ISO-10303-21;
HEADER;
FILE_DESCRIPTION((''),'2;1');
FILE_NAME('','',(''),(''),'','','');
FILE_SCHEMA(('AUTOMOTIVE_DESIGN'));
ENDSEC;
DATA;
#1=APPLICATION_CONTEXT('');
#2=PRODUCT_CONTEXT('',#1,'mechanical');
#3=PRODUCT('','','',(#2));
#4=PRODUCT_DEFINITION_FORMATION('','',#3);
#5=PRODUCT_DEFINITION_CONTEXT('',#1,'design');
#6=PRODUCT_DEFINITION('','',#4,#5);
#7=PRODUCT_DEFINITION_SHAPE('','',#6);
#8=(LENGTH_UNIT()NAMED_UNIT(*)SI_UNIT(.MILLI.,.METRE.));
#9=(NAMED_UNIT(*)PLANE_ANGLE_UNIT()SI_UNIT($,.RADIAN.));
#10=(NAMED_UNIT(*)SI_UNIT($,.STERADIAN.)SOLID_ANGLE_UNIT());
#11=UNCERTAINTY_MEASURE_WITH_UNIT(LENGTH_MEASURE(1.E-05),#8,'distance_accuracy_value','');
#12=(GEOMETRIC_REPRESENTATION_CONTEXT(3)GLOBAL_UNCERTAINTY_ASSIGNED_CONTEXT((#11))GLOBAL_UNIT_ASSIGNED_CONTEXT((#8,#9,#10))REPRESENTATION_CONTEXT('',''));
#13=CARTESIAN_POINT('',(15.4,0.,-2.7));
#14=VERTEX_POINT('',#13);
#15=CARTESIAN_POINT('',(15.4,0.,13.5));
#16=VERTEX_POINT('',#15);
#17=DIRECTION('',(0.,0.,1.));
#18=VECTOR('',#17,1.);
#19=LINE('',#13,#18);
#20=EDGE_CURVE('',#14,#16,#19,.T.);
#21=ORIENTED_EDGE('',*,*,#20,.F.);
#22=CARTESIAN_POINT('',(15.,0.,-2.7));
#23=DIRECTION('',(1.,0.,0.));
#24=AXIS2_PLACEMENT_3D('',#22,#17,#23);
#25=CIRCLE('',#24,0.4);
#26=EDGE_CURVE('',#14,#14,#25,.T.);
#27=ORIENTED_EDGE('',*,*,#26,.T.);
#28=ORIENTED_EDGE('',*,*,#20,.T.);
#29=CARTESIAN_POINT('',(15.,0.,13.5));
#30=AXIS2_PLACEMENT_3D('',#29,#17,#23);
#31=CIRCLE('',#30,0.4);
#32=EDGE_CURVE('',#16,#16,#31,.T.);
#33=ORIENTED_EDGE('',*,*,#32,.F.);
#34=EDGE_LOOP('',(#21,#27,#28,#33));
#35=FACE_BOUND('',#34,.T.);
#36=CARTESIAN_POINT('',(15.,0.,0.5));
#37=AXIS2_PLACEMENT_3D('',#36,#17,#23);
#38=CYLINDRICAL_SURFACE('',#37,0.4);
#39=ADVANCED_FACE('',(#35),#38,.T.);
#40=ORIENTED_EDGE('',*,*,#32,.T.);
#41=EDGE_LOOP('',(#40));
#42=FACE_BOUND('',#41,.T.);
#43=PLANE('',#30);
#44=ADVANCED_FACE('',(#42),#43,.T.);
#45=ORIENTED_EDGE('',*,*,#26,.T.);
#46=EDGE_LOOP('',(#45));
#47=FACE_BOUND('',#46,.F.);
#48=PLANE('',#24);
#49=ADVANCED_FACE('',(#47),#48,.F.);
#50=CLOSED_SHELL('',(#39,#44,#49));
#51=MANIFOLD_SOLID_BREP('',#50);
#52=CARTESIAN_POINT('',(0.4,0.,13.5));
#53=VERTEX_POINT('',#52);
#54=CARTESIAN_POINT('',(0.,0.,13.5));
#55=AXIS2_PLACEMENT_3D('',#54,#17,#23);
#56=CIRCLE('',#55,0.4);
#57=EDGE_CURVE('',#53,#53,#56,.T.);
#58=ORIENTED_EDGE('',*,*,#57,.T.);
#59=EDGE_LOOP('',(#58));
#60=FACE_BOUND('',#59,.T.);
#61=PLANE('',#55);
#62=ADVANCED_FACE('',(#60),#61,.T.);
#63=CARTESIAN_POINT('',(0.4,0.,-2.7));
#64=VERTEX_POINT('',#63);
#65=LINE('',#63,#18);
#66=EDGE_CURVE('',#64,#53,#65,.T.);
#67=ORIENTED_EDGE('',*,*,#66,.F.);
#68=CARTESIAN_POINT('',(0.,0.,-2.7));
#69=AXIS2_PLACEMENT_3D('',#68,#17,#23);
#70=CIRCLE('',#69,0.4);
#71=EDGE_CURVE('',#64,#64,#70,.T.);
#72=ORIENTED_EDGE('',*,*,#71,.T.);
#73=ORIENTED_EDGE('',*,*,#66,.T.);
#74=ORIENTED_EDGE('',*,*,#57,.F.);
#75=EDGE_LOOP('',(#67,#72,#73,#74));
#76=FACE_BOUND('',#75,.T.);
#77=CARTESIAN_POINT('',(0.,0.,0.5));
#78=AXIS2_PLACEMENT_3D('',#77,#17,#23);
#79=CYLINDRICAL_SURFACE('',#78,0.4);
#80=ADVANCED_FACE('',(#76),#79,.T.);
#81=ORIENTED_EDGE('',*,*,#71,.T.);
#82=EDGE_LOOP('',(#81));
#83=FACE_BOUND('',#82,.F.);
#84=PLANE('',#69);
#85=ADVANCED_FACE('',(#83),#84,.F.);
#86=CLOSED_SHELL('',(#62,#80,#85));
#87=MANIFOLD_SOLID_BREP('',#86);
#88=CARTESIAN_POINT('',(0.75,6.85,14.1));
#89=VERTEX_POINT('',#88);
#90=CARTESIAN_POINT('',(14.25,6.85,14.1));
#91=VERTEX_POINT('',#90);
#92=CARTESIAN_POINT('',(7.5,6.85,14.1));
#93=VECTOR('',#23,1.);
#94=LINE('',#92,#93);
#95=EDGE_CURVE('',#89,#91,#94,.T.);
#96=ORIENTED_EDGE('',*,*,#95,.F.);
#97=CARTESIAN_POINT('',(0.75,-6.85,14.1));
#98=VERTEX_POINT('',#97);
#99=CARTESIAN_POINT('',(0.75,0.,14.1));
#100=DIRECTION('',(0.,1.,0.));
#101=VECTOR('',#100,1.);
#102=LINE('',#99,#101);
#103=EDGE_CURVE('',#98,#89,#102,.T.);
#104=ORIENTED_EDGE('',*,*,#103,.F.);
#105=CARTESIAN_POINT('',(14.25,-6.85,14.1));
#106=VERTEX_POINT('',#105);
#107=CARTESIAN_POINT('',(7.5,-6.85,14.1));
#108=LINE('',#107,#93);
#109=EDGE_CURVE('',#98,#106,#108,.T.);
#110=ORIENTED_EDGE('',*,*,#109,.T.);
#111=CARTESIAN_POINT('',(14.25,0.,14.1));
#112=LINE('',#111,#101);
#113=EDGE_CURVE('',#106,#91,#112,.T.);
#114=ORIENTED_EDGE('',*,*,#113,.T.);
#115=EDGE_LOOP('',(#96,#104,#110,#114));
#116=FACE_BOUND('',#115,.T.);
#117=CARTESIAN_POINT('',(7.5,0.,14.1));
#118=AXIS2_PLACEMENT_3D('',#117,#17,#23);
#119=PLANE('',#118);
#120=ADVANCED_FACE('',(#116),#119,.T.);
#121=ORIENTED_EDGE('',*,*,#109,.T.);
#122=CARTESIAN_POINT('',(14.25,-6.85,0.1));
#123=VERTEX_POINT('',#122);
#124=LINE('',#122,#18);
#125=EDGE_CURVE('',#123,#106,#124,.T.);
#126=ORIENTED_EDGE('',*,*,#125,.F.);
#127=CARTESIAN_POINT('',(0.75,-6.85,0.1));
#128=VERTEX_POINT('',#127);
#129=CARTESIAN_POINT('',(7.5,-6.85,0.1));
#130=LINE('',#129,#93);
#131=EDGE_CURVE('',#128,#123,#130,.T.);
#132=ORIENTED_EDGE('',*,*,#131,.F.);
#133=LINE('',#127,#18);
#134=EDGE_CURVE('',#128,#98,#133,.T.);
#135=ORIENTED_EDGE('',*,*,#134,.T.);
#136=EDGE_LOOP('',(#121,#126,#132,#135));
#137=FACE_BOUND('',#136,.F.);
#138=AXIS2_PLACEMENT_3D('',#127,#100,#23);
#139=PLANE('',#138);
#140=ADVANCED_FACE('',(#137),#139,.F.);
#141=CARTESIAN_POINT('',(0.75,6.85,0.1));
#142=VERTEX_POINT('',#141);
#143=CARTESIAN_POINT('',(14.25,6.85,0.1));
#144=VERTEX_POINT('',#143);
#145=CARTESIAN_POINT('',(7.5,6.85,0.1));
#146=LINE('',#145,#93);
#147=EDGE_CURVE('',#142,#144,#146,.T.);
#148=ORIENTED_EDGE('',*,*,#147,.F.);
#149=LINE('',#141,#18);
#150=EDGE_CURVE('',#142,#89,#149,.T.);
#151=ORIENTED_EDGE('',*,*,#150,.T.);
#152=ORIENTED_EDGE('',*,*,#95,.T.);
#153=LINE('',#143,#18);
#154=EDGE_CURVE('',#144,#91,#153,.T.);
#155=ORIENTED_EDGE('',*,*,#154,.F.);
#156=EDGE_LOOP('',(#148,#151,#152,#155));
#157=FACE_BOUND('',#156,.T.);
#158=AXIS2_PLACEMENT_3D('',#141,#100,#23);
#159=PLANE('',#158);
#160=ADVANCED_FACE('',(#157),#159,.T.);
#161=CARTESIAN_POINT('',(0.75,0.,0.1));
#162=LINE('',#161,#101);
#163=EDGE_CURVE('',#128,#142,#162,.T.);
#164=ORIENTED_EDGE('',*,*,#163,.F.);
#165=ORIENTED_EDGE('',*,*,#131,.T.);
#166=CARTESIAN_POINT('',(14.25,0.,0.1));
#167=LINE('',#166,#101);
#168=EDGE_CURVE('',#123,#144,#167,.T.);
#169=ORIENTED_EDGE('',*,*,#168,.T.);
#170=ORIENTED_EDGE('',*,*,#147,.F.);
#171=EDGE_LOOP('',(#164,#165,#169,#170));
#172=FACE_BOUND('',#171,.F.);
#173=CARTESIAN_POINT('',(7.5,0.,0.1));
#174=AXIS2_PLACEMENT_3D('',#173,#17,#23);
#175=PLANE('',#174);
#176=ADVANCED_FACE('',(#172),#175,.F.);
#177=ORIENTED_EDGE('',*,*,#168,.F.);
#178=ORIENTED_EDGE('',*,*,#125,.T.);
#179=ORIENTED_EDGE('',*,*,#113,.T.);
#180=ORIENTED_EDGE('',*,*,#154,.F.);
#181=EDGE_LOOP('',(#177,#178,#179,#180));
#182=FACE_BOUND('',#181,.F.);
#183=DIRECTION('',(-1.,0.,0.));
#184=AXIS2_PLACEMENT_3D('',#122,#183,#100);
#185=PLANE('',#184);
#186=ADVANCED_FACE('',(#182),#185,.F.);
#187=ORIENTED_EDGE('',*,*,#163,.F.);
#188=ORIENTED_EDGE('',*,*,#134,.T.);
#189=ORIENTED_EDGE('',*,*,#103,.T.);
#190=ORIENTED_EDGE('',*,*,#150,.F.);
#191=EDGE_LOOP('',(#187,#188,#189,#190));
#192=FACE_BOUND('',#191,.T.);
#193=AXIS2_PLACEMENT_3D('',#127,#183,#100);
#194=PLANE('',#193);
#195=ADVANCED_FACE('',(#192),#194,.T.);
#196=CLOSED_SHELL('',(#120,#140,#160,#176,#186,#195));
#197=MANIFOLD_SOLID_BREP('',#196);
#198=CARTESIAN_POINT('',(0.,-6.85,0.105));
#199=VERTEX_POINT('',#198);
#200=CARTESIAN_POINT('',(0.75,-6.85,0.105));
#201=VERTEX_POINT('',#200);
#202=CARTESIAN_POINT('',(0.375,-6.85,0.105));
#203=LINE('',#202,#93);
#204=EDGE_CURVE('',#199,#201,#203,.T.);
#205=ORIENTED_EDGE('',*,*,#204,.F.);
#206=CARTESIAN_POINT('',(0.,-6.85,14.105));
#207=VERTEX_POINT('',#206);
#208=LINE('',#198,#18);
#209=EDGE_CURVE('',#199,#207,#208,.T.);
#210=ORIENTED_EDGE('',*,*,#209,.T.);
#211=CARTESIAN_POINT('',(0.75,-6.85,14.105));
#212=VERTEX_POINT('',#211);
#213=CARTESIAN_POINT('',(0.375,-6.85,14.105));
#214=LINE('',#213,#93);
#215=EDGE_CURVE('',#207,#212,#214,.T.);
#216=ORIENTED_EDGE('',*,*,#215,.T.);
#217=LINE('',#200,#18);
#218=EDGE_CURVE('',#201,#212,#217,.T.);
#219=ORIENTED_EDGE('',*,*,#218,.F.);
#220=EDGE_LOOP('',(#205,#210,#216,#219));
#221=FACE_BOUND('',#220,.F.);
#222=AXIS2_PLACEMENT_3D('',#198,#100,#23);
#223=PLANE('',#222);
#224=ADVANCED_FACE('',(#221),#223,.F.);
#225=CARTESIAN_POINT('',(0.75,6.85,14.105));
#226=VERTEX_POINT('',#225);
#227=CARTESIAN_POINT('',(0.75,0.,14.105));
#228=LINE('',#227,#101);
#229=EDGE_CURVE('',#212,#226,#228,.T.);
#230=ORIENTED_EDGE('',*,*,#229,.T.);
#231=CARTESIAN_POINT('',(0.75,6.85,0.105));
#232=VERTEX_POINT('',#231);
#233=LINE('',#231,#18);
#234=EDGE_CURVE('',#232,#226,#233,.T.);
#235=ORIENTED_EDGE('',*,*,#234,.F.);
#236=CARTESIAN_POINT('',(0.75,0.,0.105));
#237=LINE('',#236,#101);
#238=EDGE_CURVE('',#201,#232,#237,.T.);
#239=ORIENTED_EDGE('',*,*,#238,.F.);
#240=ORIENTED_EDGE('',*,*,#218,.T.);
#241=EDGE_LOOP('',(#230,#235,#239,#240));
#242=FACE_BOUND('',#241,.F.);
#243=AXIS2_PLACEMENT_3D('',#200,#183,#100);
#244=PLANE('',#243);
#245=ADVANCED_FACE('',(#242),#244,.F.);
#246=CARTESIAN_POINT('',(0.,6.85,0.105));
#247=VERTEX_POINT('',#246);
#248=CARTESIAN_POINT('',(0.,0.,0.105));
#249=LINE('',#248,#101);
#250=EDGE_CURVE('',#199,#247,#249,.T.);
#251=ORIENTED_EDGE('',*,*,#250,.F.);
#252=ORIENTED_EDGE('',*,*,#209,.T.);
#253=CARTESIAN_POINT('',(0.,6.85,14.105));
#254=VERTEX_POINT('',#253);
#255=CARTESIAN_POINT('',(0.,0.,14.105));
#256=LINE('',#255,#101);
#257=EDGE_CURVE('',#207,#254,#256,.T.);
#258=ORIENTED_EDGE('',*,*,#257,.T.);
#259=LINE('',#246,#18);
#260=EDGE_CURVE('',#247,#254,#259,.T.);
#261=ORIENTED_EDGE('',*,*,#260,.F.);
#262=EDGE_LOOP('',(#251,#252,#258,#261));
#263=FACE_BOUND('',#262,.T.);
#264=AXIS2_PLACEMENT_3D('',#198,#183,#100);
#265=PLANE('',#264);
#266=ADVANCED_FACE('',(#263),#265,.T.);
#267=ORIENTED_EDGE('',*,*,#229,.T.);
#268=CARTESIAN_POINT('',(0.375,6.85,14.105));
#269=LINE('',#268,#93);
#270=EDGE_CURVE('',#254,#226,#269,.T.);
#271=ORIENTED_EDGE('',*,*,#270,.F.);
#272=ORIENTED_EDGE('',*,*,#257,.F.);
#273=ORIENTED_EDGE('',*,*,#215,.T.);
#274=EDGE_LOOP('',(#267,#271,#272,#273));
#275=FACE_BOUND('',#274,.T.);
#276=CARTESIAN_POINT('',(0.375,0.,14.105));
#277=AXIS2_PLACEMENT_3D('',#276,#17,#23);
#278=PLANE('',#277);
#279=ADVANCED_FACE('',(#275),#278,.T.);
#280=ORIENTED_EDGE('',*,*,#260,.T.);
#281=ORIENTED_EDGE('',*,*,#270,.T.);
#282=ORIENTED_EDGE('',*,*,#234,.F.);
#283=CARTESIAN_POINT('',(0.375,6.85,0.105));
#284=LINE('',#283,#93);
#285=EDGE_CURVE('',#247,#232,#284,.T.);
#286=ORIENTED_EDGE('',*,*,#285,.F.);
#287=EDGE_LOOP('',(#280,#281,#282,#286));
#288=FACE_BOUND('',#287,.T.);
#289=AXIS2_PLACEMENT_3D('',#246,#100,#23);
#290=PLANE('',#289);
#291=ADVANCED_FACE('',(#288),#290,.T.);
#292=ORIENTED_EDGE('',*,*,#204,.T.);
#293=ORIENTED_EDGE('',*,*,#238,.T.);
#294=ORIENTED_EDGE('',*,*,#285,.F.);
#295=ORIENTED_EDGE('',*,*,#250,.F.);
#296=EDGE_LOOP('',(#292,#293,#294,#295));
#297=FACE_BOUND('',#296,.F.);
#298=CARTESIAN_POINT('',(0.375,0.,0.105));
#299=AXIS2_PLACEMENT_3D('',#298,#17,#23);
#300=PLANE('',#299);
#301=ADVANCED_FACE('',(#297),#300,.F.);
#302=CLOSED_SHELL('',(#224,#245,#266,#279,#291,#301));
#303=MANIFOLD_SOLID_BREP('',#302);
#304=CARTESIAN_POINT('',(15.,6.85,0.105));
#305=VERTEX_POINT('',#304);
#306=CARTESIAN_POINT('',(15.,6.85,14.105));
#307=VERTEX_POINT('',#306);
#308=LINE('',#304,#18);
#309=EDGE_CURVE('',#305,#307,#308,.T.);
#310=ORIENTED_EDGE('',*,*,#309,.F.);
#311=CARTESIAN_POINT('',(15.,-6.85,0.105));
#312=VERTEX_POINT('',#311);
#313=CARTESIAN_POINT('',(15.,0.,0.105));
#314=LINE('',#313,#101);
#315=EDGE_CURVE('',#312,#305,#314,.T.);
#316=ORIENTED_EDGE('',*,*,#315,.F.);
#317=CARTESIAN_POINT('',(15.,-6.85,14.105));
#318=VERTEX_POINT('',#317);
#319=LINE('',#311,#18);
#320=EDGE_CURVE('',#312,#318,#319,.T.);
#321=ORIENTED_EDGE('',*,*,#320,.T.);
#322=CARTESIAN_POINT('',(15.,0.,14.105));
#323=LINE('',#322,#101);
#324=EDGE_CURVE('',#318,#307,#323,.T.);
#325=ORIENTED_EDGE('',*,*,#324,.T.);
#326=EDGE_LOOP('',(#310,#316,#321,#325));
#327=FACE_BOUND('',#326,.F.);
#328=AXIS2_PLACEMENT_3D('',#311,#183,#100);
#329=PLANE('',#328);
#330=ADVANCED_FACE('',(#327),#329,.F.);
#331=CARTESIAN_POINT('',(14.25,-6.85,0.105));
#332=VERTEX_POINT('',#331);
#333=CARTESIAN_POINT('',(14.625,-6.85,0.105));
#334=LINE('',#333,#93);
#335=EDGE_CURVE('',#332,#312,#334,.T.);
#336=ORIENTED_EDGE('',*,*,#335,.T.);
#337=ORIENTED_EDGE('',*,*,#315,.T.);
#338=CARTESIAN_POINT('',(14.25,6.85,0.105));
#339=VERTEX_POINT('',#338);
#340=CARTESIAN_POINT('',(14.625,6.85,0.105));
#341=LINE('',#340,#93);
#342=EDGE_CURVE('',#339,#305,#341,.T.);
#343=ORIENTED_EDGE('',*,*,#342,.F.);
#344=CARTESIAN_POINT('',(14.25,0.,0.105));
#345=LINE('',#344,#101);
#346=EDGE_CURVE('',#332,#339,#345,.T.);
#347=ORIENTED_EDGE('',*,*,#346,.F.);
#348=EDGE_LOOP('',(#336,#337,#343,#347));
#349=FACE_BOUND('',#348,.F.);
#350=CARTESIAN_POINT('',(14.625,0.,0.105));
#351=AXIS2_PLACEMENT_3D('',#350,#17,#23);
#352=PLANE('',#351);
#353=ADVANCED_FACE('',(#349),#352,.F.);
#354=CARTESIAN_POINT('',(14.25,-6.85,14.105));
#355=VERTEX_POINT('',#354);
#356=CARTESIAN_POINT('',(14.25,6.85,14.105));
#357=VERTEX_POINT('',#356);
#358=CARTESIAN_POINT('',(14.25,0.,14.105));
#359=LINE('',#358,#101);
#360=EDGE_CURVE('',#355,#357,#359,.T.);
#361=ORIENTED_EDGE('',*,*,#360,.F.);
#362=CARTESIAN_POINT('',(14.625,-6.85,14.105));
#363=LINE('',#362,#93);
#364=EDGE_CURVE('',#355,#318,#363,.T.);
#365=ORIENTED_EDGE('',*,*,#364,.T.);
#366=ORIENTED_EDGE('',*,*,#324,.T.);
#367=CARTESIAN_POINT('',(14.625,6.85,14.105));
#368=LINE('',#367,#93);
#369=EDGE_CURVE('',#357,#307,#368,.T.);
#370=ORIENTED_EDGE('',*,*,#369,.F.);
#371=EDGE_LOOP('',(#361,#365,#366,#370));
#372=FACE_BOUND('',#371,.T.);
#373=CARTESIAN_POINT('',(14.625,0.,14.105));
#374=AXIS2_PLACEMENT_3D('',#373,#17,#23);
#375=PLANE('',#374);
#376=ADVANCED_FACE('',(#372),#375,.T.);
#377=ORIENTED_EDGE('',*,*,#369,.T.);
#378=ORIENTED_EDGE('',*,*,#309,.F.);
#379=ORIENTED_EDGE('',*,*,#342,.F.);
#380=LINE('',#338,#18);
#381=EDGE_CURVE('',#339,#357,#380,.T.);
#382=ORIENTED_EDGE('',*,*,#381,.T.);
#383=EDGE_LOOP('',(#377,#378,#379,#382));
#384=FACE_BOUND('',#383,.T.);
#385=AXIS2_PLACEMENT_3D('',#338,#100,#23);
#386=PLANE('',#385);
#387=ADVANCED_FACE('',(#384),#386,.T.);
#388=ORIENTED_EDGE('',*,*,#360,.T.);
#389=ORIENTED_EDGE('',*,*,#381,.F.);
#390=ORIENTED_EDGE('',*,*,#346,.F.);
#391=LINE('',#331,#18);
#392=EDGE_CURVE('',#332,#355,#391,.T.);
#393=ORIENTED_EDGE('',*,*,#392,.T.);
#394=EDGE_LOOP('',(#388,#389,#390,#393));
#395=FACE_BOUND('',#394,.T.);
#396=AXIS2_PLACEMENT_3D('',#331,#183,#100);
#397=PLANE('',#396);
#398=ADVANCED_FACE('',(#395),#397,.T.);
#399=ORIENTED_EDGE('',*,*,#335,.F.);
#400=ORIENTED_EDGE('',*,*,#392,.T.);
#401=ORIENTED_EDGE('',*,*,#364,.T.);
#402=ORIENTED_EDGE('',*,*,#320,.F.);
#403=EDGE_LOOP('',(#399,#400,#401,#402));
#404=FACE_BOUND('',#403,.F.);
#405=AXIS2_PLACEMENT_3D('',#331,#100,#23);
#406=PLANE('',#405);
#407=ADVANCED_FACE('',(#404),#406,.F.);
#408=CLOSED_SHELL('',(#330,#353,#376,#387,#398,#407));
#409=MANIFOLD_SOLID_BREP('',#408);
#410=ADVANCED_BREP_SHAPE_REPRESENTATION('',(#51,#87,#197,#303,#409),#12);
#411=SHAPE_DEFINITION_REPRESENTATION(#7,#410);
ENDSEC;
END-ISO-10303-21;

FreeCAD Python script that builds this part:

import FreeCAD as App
import Part
import Sketcher
from FreeCAD import Vector
Q = App.Units.Quantity


def add_polygon(sketch, points):
    """Adds a closed chain of lines whose ends are joined by coincident constraints."""
    first, n = sketch.GeometryCount, len(points)
    for a, b in zip(points, points[1:] + points[:1]):
        sketch.addGeometry(Part.LineSegment(App.Vector(*a, 0), App.Vector(*b, 0)), False)
    for i in range(n):
        sketch.addConstraint(Sketcher.Constraint("Coincident", first + i, 2, first + (i + 1) % n, 1))

doc = App.newDocument("Part")
body = doc.addObject("PartDesign::Body", "Body")

sketch1 = doc.addObject("Sketcher::SketchObject", "Sketch")
body.addObject(sketch1)
sketch1.AttachmentSupport = (doc.XY_Plane, [""])
sketch1.MapMode = "FlatFace"
sketch1.AttachmentOffset = App.Placement(Vector(0, 0, 0.1), App.Rotation())
add_polygon(sketch1, [(1, 7), (1, -7), (14, -7), (14, 7)])
sketch1.addConstraint([
    Sketcher.Constraint("Vertical", 0),
    Sketcher.Constraint("Horizontal", 1),
    Sketcher.Constraint("Vertical", 2),
    Sketcher.Constraint("Horizontal", 3),
    Sketcher.Constraint("DistanceX", 1, 1, 1, 2, Q("13.5 mm")),
    Sketcher.Constraint("DistanceY", 0, 2, 0, 1, Q("13.7 mm")),
    Sketcher.Constraint("DistanceX", -1, 1, 0, 2, Q("0.75 mm")),
    Sketcher.Constraint("DistanceY", 0, 2, -1, 1, Q("6.85 mm")),
])
pad1 = doc.addObject("PartDesign::Pad", "Pad")
body.addObject(pad1)
pad1.Profile = sketch1
pad1.Length = 14
body2 = doc.addObject("PartDesign::Body", "Body001")
body2.AllowCompound = True

sketch2 = doc.addObject("Sketcher::SketchObject", "Sketch001")
body2.addObject(sketch2)
sketch2.AttachmentSupport = (doc.getObject("XY_Plane001"), [""])
sketch2.MapMode = "FlatFace"
sketch2.AttachmentOffset = App.Placement(Vector(0, 0, 0.5), App.Rotation())
sketch2.addGeometry([
    Part.Circle(Vector(0, 0, 0), Vector(0, 0, 1), 0.4),
    Part.Circle(Vector(15, 0, 0), Vector(0, 0, 1), 0.4),
], False)
sketch2.addConstraint([
    Sketcher.Constraint("Coincident", 0, 3, -1, 1),
    Sketcher.Constraint("Equal", 0, 1),
    Sketcher.Constraint("PointOnObject", 1, 3, -1),
    Sketcher.Constraint("Diameter", 0, Q("0.8 mm")),
    Sketcher.Constraint("DistanceX", -1, 1, 1, 3, Q("15 mm")),
])
pad2 = doc.addObject("PartDesign::Pad", "Pad001")
body2.addObject(pad2)
pad2.Profile = sketch2
pad2.Type = "TwoLengths"
pad2.Length = 13
pad2.Length2 = 3.2
body3 = doc.addObject("PartDesign::Body", "Body002")
body3.AllowCompound = True

sketch3 = doc.addObject("Sketcher::SketchObject", "Sketch002")
body3.addObject(sketch3)
sketch3.AttachmentSupport = (doc.getObject("XY_Plane002"), [""])
sketch3.MapMode = "FlatFace"
sketch3.AttachmentOffset = App.Placement(Vector(0, 0, 0.105), App.Rotation())
add_polygon(sketch3, [(0, 6.8), (0, -6.8), (0.8, -6.8), (0.8, 6.8)])
add_polygon(sketch3, [(14.2, 6.8), (14.2, -6.8), (15, -6.8), (15, 6.8)])
sketch3.addConstraint([
    Sketcher.Constraint("Vertical", 0),
    Sketcher.Constraint("Horizontal", 1),
    Sketcher.Constraint("Vertical", 2),
    Sketcher.Constraint("Horizontal", 3),
    Sketcher.Constraint("Vertical", 4),
    Sketcher.Constraint("Horizontal", 5),
    Sketcher.Constraint("Vertical", 6),
    Sketcher.Constraint("Horizontal", 7),
    Sketcher.Constraint("Symmetric", 0, 2, 3, 2, -1, 1),
    Sketcher.Constraint("Horizontal", 1, 2, 4, 2),
    Sketcher.Constraint("Horizontal", 3, 2, 6, 2),
    Sketcher.Constraint("Equal", 3, 5),
    Sketcher.Constraint("DistanceY", 0, 2, 0, 1, Q("13.7 mm")),
    Sketcher.Constraint("DistanceX", -1, 1, 5, 2, Q("15 mm")),
    Sketcher.Constraint("DistanceX", 1, 1, 1, 2, Q("0.75 mm")),
])
pad3 = doc.addObject("PartDesign::Pad", "Pad002")
body3.addObject(pad3)
pad3.Profile = sketch3
pad3.Length = 14

doc.recompute()
